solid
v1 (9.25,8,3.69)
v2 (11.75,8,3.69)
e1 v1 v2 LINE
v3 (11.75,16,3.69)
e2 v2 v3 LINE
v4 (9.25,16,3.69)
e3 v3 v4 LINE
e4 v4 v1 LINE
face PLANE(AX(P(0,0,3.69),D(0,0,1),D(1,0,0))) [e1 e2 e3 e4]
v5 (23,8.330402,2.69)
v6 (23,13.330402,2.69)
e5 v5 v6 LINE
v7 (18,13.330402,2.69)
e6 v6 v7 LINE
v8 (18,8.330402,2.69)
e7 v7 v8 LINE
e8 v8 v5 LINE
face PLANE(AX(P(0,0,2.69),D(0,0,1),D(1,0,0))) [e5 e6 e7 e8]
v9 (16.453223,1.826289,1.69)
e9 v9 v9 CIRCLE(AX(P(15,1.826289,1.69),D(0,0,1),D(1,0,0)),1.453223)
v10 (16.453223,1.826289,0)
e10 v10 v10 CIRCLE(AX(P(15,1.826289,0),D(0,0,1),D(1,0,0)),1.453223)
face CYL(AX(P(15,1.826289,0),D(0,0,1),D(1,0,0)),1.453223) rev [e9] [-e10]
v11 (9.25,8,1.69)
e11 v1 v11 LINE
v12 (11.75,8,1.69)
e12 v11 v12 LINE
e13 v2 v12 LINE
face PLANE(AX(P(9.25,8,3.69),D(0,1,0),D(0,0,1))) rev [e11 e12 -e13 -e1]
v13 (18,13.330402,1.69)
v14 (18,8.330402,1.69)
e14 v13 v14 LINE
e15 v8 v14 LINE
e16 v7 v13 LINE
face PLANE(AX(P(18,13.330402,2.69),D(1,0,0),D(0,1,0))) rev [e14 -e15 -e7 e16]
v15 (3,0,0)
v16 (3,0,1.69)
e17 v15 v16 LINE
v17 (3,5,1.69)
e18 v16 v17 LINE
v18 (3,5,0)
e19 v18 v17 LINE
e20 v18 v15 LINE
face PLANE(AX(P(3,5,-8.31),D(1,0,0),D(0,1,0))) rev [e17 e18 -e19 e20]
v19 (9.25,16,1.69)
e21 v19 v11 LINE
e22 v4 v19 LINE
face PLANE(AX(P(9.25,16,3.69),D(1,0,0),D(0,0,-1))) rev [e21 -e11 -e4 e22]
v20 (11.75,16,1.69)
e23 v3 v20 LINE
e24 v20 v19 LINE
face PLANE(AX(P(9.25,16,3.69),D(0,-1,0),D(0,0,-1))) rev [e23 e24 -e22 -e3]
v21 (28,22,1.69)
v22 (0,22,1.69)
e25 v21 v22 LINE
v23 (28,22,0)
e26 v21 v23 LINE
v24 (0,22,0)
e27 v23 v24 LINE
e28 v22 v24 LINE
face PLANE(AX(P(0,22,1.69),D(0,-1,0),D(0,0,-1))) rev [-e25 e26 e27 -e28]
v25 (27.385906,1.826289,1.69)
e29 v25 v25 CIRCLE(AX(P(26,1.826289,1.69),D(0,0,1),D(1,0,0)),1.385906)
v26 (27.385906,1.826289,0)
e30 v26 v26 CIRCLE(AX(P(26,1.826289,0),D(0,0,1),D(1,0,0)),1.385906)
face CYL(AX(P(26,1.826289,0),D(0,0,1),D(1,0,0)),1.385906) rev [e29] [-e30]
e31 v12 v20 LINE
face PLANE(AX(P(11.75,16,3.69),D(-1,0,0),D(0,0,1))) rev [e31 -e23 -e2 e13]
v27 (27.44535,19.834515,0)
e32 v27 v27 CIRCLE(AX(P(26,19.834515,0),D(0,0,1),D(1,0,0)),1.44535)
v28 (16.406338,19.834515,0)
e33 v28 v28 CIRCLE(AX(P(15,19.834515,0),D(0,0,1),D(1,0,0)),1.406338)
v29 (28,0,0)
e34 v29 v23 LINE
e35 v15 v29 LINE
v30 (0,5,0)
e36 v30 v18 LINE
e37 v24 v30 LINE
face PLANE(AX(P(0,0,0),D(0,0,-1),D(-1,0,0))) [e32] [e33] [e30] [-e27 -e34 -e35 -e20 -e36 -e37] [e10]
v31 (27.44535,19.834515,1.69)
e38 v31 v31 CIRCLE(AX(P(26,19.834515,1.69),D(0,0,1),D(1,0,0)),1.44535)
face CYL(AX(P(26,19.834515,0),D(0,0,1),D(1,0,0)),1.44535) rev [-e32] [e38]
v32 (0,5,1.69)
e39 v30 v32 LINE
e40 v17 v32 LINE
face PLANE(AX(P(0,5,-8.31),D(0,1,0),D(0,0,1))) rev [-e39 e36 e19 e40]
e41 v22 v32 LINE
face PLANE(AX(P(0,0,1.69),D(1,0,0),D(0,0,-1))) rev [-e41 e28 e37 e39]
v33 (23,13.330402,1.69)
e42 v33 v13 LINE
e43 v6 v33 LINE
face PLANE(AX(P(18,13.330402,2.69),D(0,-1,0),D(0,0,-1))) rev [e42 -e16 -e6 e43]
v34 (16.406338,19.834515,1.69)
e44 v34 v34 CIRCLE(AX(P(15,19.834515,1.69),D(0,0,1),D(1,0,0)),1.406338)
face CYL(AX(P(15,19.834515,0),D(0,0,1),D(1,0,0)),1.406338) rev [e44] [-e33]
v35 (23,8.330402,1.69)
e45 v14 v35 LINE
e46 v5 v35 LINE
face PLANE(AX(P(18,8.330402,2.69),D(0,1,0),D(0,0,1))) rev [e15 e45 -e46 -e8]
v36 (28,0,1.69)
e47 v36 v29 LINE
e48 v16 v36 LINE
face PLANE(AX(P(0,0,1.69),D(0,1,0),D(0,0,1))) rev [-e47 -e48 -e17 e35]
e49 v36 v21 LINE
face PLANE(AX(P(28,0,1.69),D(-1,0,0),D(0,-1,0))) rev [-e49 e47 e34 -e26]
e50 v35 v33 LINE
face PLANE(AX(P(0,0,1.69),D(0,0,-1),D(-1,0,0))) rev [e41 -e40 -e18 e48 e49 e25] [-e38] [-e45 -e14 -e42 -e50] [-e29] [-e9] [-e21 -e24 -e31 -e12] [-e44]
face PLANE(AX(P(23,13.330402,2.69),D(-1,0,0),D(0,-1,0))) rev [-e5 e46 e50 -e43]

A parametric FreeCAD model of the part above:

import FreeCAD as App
import Part
import Sketcher

V = App.Vector

doc = App.newDocument("Part")
params = doc.addObject("Spreadsheet::Sheet", "Params")
for row, (alias, value) in enumerate([
    ("sketch1_width", "28 mm"),
    ("sketch1_height", "22 mm"),
    ("pad1_length", "1.69 mm"),
    ("pocket1_length", "1.69 mm"),
    ("sketch3_width", "5 mm"),
    ("pad2_length", "1 mm"),
    ("sketch4_height", "8 mm"),
    ("sketch4_width", "2.5 mm"),
    ("pad3_length", "2 mm"),
    ("sketch5_width", "3 mm"),
    ("sketch5_height", "5 mm"),
    ("pocket2_length", "10 mm"),
], start=1):
    params.set(f"A{row}", alias)
    params.set(f"B{row}", "=" + value)
    params.setAlias(f"B{row}", alias)

body = doc.addObject("PartDesign::Body", "Body")

# Sketch on XY plane
sketch1 = body.newObject("Sketcher::SketchObject", "Sketch")
sketch1.AttachmentSupport = (doc.getObject("XY_Plane"), [""])
sketch1.MapMode = "FlatFace"
sketch1.addGeometry([
    Part.LineSegment(V(0, 22, 0), V(0, 0, 0)),
    Part.LineSegment(V(0, 0, 0), V(28, 0, 0)),
    Part.LineSegment(V(28, 0, 0), V(28, 22, 0)),
    Part.LineSegment(V(28, 22, 0), V(0, 22, 0)),
], False)
sketch1.addConstraint([
    Sketcher.Constraint("Coincident", 0, 2, 1, 1),
    Sketcher.Constraint("Coincident", 1, 2, 2, 1),
    Sketcher.Constraint("Coincident", 2, 2, 3, 1),
    Sketcher.Constraint("Coincident", 3, 2, 0, 1),
    Sketcher.Constraint("Vertical", 0),
    Sketcher.Constraint("Horizontal", 1),
    Sketcher.Constraint("Vertical", 2),
    Sketcher.Constraint("Horizontal", 3),
    Sketcher.Constraint("Coincident", 0, 2, -1, 1),
    Sketcher.Constraint("DistanceX", 1, 1, 1, 2, 28.0),
    Sketcher.Constraint("DistanceY", 0, 2, 0, 1, 22.0),
])
sketch1.setExpression("Constraints[9]", "Params.sketch1_width")
sketch1.setExpression("Constraints[10]", "Params.sketch1_height")
pad1 = body.newObject("PartDesign::Pad", "Pad")
pad1.Profile = sketch1
pad1.setExpression("Length", "Params.pad1_length")

# Sketch on XY plane
sketch2 = body.newObject("Sketcher::SketchObject", "Sketch001")
sketch2.AttachmentSupport = (doc.getObject("XY_Plane"), [""])
sketch2.MapMode = "FlatFace"
sketch2.AttachmentOffset = App.Placement(V(0, 0, 1.69), App.Rotation())
sketch2.addGeometry([
    Part.Circle(V(26, 19.8, 0), V(0, 0, 1), 1.4),
    Part.Circle(V(26, 1.8, 0), V(0, 0, 1), 1.4),
    Part.Circle(V(15, 1.8, 0), V(0, 0, 1), 1.5),
    Part.Circle(V(15, 19.8, 0), V(0, 0, 1), 1.4),
], False)
sketch2.addConstraint([
    Sketcher.Constraint("Horizontal", 1, 3, 2, 3),
    Sketcher.Constraint("Horizontal", 0, 3, 3, 3),
    Sketcher.Constraint("Vertical", 0, 3, 1, 3),
    Sketcher.Constraint("Vertical", 2, 3, 3, 3),
    Sketcher.Constraint("DistanceX", -1, 1, 0, 3, 26.0),
    Sketcher.Constraint("DistanceX", -1, 1, 2, 3, 15.0),
    Sketcher.Constraint("Diameter", 0, 2.890701),
    Sketcher.Constraint("Diameter", 1, 2.771812),
    Sketcher.Constraint("Diameter", 2, 2.906447),
    Sketcher.Constraint("Diameter", 3, 2.812676),
    Sketcher.Constraint("DistanceY", -1, 1, 1, 3, 1.826289),
    Sketcher.Constraint("DistanceY", -1, 1, 0, 3, 19.834515),
])
pocket1 = body.newObject("PartDesign::Pocket", "Pocket")
pocket1.Profile = sketch2
pocket1.setExpression("Length", "Params.pocket1_length")

# Sketch on XY plane
sketch3 = body.newObject("Sketcher::SketchObject", "Sketch002")
sketch3.AttachmentSupport = (doc.getObject("XY_Plane"), [""])
sketch3.MapMode = "FlatFace"
sketch3.AttachmentOffset = App.Placement(V(0, 0, 1.69), App.Rotation())
sketch3.addGeometry([
    Part.LineSegment(V(18, 13, 0), V(18, 8, 0)),
    Part.LineSegment(V(18, 8, 0), V(23, 8, 0)),
    Part.LineSegment(V(23, 8, 0), V(23, 13, 0)),
    Part.LineSegment(V(23, 13, 0), V(18, 13, 0)),
], False)
sketch3.addConstraint([
    Sketcher.Constraint("Coincident", 0, 2, 1, 1),
    Sketcher.Constraint("Coincident", 1, 2, 2, 1),
    Sketcher.Constraint("Coincident", 2, 2, 3, 1),
    Sketcher.Constraint("Coincident", 3, 2, 0, 1),
    Sketcher.Constraint("Vertical", 0),
    Sketcher.Constraint("Horizontal", 1),
    Sketcher.Constraint("Vertical", 2),
    Sketcher.Constraint("Horizontal", 3),
    Sketcher.Constraint("Equal", 3, 0),
    Sketcher.Constraint("DistanceX", 1, 1, 1, 2, 5.0),
    Sketcher.Constraint("DistanceX", -1, 1, 0, 2, 18.0),
    Sketcher.Constraint("DistanceY", -1, 1, 0, 2, 8.330402),
])
sketch3.setExpression("Constraints[9]", "Params.sketch3_width")
pad2 = body.newObject("PartDesign::Pad", "Pad001")
pad2.Profile = sketch3
pad2.setExpression("Length", "Params.pad2_length")

# Sketch on XY plane
sketch4 = body.newObject("Sketcher::SketchObject", "Sketch003")
sketch4.AttachmentSupport = (doc.getObject("XY_Plane"), [""])
sketch4.MapMode = "FlatFace"
sketch4.AttachmentOffset = App.Placement(V(0, 0, 1.69), App.Rotation())
sketch4.addGeometry([
    Part.LineSegment(V(9.2, 16, 0), V(9.2, 8, 0)),
    Part.LineSegment(V(9.2, 8, 0), V(11.8, 8, 0)),
    Part.LineSegment(V(11.8, 8, 0), V(11.8, 16, 0)),
    Part.LineSegment(V(11.8, 16, 0), V(9.2, 16, 0)),
], False)
sketch4.addConstraint([
    Sketcher.Constraint("Coincident", 0, 2, 1, 1),
    Sketcher.Constraint("Coincident", 1, 2, 2, 1),
    Sketcher.Constraint("Coincident", 2, 2, 3, 1),
    Sketcher.Constraint("Coincident", 3, 2, 0, 1),
    Sketcher.Constraint("Vertical", 0),
    Sketcher.Constraint("Horizontal", 1),
    Sketcher.Constraint("Vertical", 2),
    Sketcher.Constraint("Horizontal", 3),
    Sketcher.Constraint("DistanceY", 0, 2, 0, 1, 8.0),
    Sketcher.Constraint("DistanceX", 1, 1, 1, 2, 2.5),
    Sketcher.Constraint("DistanceY", -1, 1, 0, 2, 8.0),
    Sketcher.Constraint("DistanceX", -1, 1, 0, 2, 9.25),
])
sketch4.setExpression("Constraints[8]", "Params.sketch4_height")
sketch4.setExpression("Constraints[9]", "Params.sketch4_width")
pad3 = body.newObject("PartDesign::Pad", "Pad002")
pad3.Profile = sketch4
pad3.setExpression("Length", "Params.pad3_length")

# Sketch on XY plane
sketch5 = body.newObject("Sketcher::SketchObject", "Sketch004")
sketch5.AttachmentSupport = (doc.getObject("XY_Plane"), [""])
sketch5.MapMode = "FlatFace"
sketch5.AttachmentOffset = App.Placement(V(0, 0, 1.69), App.Rotation())
sketch5.addGeometry([
    Part.LineSegment(V(0, 5, 0), V(0, 0, 0)),
    Part.LineSegment(V(0, 0, 0), V(3, 0, 0)),
    Part.LineSegment(V(3, 0, 0), V(3, 5, 0)),
    Part.LineSegment(V(3, 5, 0), V(0, 5, 0)),
], False)
sketch5.addConstraint([
    Sketcher.Constraint("Coincident", 0, 2, 1, 1),
    Sketcher.Constraint("Coincident", 1, 2, 2, 1),
    Sketcher.Constraint("Coincident", 2, 2, 3, 1),
    Sketcher.Constraint("Coincident", 3, 2, 0, 1),
    Sketcher.Constraint("Vertical", 0),
    Sketcher.Constraint("Horizontal", 1),
    Sketcher.Constraint("Vertical", 2),
    Sketcher.Constraint("Horizontal", 3),
    Sketcher.Constraint("Coincident", 0, 2, -1, 1),
    Sketcher.Constraint("DistanceX", 1, 1, 1, 2, 3.0),
    Sketcher.Constraint("DistanceY", 0, 2, 0, 1, 5.0),
])
sketch5.setExpression("Constraints[9]", "Params.sketch5_width")
sketch5.setExpression("Constraints[10]", "Params.sketch5_height")
pocket2 = body.newObject("PartDesign::Pocket", "Pocket001")
pocket2.Profile = sketch5
pocket2.setExpression("Length", "Params.pocket2_length")

doc.recompute()
